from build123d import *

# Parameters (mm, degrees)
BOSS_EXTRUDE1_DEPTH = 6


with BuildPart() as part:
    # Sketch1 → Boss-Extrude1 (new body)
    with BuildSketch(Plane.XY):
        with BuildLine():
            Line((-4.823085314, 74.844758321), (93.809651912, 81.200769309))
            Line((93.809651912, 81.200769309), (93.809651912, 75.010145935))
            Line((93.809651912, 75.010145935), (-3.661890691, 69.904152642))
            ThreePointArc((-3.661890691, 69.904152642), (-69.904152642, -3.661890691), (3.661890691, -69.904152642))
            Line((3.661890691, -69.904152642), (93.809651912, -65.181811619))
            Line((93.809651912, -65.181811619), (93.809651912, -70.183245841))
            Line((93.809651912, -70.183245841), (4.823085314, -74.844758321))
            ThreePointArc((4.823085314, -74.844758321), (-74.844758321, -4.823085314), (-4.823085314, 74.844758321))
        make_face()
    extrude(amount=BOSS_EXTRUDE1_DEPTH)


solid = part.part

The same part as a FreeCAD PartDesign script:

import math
import FreeCAD as App
import Part
import Sketcher

V = App.Vector

doc = App.newDocument("Part")
params = doc.addObject("Spreadsheet::Sheet", "Params")
for row, (alias, value) in enumerate([
    ("sketch1_radius", "75 mm"),
    ("sketch1_radius2", "70 mm"),
    ("pad1_length", "6 mm"),
], start=1):
    params.set(f"A{row}", alias)
    params.set(f"B{row}", "=" + value)
    params.setAlias(f"B{row}", alias)

body = doc.addObject("PartDesign::Body", "Body")

sketch1 = body.newObject("Sketcher::SketchObject", "Sketch")
sketch1.AttachmentSupport = (doc.getObject("XY_Plane"), [""])
sketch1.MapMode = "FlatFace"
sketch1.addGeometry([
    Part.LineSegment(V(94, 81, 0), V(-5, 75, 0)),
    Part.ArcOfCircle(Part.Circle(V(0, 0, 0), V(0, 0, 1), 75), math.radians(94), math.radians(274)),
    Part.LineSegment(V(5, -75, 0), V(94, -70, 0)),
    Part.LineSegment(V(94, -70, 0), V(94, -65, 0)),
    Part.LineSegment(V(94, -65, 0), V(4, -70, 0)),
    Part.ArcOfCircle(Part.Circle(V(0, 0, 0), V(0, 0, 1), 70), math.radians(93), math.radians(273)),
    Part.LineSegment(V(-4, 70, 0), V(94, 75, 0)),
    Part.LineSegment(V(94, 75, 0), V(94, 81, 0)),
], False)
sketch1.addConstraint([
    Sketcher.Constraint("Tangent", 0, 2, 1, 1),
    Sketcher.Constraint("Coincident", 1, 2, 2, 1),
    Sketcher.Constraint("Coincident", 2, 2, 3, 1),
    Sketcher.Constraint("Coincident", 3, 2, 4, 1),
    Sketcher.Constraint("Tangent", 4, 2, 5, 2),
    Sketcher.Constraint("Tangent", 5, 1, 6, 1),
    Sketcher.Constraint("Coincident", 6, 2, 7, 1),
    Sketcher.Constraint("Coincident", 7, 2, 0, 1),
    Sketcher.Constraint("Vertical", 3),
    Sketcher.Constraint("Vertical", 7),
    Sketcher.Constraint("Coincident", 1, 3, -1, 1),
    Sketcher.Constraint("Coincident", 5, 3, -1, 1),
    Sketcher.Constraint("Parallel", 2, 4),
    Sketcher.Constraint("Parallel", 4, 6),
    Sketcher.Constraint("Vertical", 3, 2, 6, 2),
    Sketcher.Constraint("Radius", 1, 75.0),
    Sketcher.Constraint("Radius", 5, 70.0),
    Sketcher.Constraint("Distance", 0, 98.83732),
    Sketcher.Constraint("Distance", 2, 89.108578),
    Sketcher.Constraint("Distance", 6, 97.605188),
    Sketcher.Constraint("DistanceY", 3, 1, 3, 2, 5.001434),
])
sketch1.setExpression("Constraints[15]", "Params.sketch1_radius")
sketch1.setExpression("Constraints[16]", "Params.sketch1_radius2")
pad1 = body.newObject("PartDesign::Pad", "Pad")
pad1.Profile = sketch1
pad1.setExpression("Length", "Params.pad1_length")

doc.recompute()
